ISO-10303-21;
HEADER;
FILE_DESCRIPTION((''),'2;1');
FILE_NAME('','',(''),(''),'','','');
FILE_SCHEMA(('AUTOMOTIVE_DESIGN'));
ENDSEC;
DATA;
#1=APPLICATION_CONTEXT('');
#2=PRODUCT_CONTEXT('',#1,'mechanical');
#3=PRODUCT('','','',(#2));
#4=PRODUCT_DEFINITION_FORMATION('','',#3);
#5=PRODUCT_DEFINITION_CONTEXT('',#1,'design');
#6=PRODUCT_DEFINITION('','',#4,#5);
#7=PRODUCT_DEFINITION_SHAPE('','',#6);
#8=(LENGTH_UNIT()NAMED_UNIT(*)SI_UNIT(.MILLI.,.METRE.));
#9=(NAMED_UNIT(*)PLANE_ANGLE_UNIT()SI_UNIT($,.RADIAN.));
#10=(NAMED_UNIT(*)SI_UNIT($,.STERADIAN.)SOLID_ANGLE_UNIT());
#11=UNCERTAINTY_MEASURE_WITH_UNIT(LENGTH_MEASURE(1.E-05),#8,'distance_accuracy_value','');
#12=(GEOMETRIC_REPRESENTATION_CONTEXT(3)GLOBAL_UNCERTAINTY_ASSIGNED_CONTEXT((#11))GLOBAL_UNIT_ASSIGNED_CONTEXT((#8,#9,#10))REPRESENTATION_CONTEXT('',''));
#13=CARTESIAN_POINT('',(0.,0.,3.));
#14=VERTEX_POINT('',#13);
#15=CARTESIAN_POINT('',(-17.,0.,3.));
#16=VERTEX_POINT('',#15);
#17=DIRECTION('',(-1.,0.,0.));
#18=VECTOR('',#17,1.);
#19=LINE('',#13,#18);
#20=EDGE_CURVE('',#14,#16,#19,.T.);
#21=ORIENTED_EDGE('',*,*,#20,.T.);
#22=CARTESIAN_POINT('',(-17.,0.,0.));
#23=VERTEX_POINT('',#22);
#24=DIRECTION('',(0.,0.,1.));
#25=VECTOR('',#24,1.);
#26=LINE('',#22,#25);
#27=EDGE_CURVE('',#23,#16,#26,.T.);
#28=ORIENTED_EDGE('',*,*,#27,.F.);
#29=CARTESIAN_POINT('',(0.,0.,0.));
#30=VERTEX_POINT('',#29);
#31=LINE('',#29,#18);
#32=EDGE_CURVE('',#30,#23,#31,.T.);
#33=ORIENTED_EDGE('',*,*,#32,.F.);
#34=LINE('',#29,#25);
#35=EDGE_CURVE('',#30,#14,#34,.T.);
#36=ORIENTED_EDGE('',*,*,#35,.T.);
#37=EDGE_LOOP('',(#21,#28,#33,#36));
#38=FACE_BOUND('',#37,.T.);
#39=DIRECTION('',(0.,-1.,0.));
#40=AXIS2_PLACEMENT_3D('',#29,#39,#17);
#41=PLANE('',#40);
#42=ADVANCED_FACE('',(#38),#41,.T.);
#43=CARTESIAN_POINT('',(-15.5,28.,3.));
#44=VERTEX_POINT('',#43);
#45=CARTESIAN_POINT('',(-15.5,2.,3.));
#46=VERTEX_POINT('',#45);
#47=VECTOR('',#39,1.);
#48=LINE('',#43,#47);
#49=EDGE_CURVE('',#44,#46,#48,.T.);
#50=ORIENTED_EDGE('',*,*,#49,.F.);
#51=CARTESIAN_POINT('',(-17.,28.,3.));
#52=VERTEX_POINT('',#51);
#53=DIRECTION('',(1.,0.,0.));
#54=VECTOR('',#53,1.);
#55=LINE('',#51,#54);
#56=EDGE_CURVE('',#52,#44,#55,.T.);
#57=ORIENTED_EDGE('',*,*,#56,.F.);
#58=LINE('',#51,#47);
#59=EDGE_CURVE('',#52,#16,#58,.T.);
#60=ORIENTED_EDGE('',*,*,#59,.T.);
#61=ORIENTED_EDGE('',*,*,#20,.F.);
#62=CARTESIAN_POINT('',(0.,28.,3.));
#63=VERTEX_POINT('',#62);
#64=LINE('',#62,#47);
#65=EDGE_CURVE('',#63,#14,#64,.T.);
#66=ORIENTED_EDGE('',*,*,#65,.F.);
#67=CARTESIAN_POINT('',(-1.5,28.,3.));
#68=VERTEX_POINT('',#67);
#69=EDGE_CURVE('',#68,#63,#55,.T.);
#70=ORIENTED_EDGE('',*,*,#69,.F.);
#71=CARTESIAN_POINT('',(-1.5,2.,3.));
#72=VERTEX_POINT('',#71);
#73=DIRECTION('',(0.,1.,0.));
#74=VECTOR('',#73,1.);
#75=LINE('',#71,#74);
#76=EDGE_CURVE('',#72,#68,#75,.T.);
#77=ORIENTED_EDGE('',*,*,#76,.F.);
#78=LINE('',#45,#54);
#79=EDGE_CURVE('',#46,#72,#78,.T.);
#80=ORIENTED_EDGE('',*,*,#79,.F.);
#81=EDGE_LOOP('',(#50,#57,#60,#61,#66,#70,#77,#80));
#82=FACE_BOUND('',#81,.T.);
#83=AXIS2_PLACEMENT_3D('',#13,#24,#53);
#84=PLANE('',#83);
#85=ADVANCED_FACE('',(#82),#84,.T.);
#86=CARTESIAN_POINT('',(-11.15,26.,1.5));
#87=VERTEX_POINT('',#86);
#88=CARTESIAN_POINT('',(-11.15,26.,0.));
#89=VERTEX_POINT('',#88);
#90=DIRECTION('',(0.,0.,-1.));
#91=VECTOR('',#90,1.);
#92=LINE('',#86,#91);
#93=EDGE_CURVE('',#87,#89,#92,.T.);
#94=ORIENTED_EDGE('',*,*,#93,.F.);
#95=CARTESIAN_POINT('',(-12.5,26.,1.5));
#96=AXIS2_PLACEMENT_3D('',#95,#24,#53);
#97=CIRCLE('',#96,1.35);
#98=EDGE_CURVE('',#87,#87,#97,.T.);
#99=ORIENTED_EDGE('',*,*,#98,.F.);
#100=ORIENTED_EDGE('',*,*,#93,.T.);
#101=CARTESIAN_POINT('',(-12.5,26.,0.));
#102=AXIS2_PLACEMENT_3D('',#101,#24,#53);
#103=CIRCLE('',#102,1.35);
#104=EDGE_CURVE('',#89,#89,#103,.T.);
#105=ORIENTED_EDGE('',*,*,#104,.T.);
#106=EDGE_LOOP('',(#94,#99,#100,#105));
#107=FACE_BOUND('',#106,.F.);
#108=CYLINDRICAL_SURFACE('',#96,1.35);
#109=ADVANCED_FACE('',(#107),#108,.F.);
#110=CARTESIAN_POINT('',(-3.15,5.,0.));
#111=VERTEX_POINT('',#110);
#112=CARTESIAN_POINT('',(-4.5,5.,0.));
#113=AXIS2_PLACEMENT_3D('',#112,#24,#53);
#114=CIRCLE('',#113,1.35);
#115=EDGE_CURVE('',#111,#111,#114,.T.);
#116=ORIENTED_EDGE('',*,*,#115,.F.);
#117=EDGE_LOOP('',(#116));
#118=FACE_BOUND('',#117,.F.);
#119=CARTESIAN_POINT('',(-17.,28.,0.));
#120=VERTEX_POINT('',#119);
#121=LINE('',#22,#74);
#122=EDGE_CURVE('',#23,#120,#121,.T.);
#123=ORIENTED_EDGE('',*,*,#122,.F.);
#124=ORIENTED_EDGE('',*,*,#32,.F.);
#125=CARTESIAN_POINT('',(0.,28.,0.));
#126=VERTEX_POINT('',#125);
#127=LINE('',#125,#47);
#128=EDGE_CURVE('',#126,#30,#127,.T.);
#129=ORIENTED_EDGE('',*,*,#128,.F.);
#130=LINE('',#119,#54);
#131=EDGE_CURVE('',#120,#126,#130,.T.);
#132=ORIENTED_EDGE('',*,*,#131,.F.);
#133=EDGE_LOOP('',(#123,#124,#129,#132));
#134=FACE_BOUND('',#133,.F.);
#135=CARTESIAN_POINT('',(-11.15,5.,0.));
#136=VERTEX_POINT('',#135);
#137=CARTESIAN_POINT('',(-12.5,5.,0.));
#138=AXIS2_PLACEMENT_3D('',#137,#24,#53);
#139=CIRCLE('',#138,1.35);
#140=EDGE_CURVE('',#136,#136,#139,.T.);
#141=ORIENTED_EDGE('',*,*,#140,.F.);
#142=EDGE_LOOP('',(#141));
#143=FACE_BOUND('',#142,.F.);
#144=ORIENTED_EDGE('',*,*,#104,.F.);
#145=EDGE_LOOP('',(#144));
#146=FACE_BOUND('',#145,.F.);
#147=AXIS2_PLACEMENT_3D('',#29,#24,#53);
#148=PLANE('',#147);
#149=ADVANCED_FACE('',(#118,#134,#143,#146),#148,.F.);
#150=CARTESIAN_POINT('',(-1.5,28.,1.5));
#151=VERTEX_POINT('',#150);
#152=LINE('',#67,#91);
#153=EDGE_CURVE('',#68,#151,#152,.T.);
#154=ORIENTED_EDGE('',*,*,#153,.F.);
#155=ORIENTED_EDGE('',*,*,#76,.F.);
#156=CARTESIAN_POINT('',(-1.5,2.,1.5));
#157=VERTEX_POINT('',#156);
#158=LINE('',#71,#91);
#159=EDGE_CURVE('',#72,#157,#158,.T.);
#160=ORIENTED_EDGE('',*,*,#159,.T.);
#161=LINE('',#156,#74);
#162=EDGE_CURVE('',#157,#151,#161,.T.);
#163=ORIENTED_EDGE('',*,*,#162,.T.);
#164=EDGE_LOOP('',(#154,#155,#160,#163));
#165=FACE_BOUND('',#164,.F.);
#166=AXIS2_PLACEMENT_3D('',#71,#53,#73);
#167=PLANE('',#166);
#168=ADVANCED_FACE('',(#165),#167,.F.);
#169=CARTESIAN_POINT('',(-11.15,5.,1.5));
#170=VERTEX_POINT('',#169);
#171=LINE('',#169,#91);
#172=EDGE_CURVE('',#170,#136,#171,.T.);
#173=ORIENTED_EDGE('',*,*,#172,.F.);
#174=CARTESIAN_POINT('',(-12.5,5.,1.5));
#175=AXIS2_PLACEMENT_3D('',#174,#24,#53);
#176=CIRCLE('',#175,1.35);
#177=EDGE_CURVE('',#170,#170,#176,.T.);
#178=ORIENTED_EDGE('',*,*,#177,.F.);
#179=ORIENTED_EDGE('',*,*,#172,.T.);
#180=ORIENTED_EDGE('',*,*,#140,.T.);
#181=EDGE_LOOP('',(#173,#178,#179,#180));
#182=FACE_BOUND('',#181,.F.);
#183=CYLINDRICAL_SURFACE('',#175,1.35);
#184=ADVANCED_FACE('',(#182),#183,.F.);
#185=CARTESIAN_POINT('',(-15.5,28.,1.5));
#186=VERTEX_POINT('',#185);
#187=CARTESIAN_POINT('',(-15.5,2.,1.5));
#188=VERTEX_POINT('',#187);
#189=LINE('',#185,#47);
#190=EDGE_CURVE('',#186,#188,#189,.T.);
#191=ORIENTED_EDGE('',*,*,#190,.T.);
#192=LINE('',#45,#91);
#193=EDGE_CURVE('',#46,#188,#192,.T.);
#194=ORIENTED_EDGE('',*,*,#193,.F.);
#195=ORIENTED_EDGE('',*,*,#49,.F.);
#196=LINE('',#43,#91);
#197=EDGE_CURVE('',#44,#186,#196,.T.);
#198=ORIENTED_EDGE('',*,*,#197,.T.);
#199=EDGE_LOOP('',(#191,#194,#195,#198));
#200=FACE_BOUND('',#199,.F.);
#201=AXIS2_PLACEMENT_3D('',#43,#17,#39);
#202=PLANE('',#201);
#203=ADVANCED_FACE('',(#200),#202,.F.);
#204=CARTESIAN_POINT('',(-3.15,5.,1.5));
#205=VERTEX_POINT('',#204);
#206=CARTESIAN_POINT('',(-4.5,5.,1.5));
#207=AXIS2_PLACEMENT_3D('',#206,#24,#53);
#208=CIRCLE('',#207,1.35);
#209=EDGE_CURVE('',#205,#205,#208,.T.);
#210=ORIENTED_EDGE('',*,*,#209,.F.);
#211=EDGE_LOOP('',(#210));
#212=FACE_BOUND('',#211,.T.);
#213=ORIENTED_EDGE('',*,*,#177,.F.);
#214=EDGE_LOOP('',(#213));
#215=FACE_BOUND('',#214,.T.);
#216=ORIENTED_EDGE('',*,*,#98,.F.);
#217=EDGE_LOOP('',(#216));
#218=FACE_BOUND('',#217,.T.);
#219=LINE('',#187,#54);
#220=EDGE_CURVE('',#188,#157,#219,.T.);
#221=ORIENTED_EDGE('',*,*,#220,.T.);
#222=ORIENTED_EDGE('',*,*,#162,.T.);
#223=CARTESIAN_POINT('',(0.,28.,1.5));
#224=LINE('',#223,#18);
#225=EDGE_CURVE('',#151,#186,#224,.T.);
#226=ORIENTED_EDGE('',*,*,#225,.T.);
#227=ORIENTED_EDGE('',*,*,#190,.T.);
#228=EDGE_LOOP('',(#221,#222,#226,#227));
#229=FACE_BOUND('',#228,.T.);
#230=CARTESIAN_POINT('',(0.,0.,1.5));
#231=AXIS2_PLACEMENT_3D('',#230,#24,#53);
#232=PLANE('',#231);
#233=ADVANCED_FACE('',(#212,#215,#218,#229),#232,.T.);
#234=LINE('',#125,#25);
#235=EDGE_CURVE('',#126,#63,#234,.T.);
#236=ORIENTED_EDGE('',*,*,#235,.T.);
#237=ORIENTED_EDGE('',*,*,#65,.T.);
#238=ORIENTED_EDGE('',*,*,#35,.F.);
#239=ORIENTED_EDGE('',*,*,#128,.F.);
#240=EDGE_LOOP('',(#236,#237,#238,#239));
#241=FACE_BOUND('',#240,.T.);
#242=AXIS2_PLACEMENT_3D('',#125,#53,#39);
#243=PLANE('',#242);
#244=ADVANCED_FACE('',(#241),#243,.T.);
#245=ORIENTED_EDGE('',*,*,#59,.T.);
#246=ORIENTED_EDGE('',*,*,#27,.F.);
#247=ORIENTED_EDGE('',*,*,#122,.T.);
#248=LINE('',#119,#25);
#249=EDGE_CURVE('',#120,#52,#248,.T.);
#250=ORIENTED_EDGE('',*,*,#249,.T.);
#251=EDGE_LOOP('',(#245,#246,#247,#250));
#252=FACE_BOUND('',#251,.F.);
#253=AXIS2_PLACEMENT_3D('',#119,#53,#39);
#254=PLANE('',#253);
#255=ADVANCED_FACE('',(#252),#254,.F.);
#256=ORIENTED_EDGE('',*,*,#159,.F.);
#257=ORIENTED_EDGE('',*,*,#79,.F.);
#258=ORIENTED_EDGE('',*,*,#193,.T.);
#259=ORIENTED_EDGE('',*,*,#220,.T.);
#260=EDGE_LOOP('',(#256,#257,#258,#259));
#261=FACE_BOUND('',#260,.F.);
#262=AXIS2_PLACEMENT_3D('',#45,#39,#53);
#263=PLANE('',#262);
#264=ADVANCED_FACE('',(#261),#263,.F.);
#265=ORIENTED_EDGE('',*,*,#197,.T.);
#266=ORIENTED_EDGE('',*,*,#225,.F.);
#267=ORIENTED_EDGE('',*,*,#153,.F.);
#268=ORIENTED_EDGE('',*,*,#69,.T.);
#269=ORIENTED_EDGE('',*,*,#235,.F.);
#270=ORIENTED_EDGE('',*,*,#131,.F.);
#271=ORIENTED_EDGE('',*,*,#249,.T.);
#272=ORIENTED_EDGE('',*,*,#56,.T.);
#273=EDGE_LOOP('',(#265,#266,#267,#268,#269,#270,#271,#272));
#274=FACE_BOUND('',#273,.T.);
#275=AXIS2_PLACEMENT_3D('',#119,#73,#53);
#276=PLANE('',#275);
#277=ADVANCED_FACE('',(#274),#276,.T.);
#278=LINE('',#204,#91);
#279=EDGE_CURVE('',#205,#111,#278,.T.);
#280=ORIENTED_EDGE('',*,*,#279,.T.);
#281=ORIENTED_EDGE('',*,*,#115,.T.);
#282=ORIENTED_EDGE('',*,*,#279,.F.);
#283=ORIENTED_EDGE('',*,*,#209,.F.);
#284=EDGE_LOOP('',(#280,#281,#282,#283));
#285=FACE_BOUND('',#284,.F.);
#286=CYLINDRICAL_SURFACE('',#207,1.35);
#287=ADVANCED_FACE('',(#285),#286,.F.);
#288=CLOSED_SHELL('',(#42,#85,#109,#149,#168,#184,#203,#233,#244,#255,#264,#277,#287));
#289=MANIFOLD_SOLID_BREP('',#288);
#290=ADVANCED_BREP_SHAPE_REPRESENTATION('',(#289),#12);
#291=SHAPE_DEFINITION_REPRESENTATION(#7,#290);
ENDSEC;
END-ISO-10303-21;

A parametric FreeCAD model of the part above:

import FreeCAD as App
import Part
import Sketcher
Q = App.Units.Quantity

doc = App.newDocument("Part")
body = doc.addObject("PartDesign::Body", "Body")

# Sketch on XY plane
sketch1 = body.newObject("Sketcher::SketchObject", "Sketch")
sketch1.AttachmentSupport = (doc.getObject("XY_Plane"), [""])
sketch1.MapMode = "FlatFace"
sketch1.addGeometry([
    Part.LineSegment(App.Vector(0, 28, 0), App.Vector(-17, 28, 0)),
    Part.LineSegment(App.Vector(-17, 28, 0), App.Vector(-17, 0, 0)),
    Part.LineSegment(App.Vector(-17, 0, 0), App.Vector(0, 0, 0)),
    Part.LineSegment(App.Vector(0, 0, 0), App.Vector(0, 28, 0)),
], False)
sketch1.addConstraint([
    Sketcher.Constraint("Coincident", 0, 2, 1, 1),
    Sketcher.Constraint("Coincident", 1, 2, 2, 1),
    Sketcher.Constraint("Coincident", 2, 2, 3, 1),
    Sketcher.Constraint("Coincident", 3, 2, 0, 1),
    Sketcher.Constraint("Horizontal", 0),
    Sketcher.Constraint("Vertical", 1),
    Sketcher.Constraint("Horizontal", 2),
    Sketcher.Constraint("Vertical", 3),
    Sketcher.Constraint("Coincident", 2, 2, -1, 1),
    Sketcher.Constraint("DistanceX", 0, 2, 0, 1, Q("17 mm")),
    Sketcher.Constraint("DistanceY", 1, 2, 1, 1, Q("28 mm")),
])
pad1 = body.newObject("PartDesign::Pad", "Pad")
pad1.Profile = sketch1
pad1.Length = 3

# Sketch on XY plane
sketch2 = body.newObject("Sketcher::SketchObject", "Sketch001")
sketch2.AttachmentSupport = (doc.getObject("XY_Plane"), [""])
sketch2.MapMode = "FlatFace"
sketch2.AttachmentOffset = App.Placement(App.Vector(0, 0, 3), App.Rotation())
sketch2.addGeometry([
    Part.LineSegment(App.Vector(-2, 28, 0), App.Vector(-16, 28, 0)),
    Part.LineSegment(App.Vector(-16, 28, 0), App.Vector(-16, 2, 0)),
    Part.LineSegment(App.Vector(-16, 2, 0), App.Vector(-2, 2, 0)),
    Part.LineSegment(App.Vector(-2, 2, 0), App.Vector(-2, 28, 0)),
], False)
sketch2.addConstraint([
    Sketcher.Constraint("Coincident", 0, 2, 1, 1),
    Sketcher.Constraint("Coincident", 1, 2, 2, 1),
    Sketcher.Constraint("Coincident", 2, 2, 3, 1),
    Sketcher.Constraint("Coincident", 3, 2, 0, 1),
    Sketcher.Constraint("Horizontal", 0),
    Sketcher.Constraint("Vertical", 1),
    Sketcher.Constraint("Horizontal", 2),
    Sketcher.Constraint("Vertical", 3),
    Sketcher.Constraint("DistanceX", 0, 2, 0, 1, Q("14 mm")),
    Sketcher.Constraint("DistanceY", 1, 2, 1, 1, Q("26 mm")),
    Sketcher.Constraint("DistanceY", -1, 1, 0, 2, Q("28 mm")),
    Sketcher.Constraint("DistanceX", 0, 2, -1, 1, Q("15.5 mm")),
])
pocket1 = body.newObject("PartDesign::Pocket", "Pocket")
pocket1.Profile = sketch2
pocket1.Length = 1.5

# Sketch on XY plane
sketch3 = body.newObject("Sketcher::SketchObject", "Sketch002")
sketch3.AttachmentSupport = (doc.getObject("XY_Plane"), [""])
sketch3.MapMode = "FlatFace"
sketch3.AttachmentOffset = App.Placement(App.Vector(0, 0, 1.5), App.Rotation())
sketch3.addGeometry([
    Part.Circle(App.Vector(-12.5, 26, 0), App.Vector(0, 0, 1), 1.4),
    Part.Circle(App.Vector(-12.5, 5, 0), App.Vector(0, 0, 1), 1.4),
    Part.Circle(App.Vector(-4.5, 5, 0), App.Vector(0, 0, 1), 1.4),
], False)
sketch3.addConstraint([
    Sketcher.Constraint("Equal", 0, 1),
    Sketcher.Constraint("Equal", 1, 2),
    Sketcher.Constraint("Horizontal", 1, 3, 2, 3),
    Sketcher.Constraint("Vertical", 0, 3, 1, 3),
    Sketcher.Constraint("Diameter", 0, Q("2.7 mm")),
    Sketcher.Constraint("DistanceY", 1, 3, 0, 3, Q("21 mm")),
    Sketcher.Constraint("DistanceX", 1, 3, 2, 3, Q("8 mm")),
    Sketcher.Constraint("DistanceY", -1, 1, 0, 3, Q("26 mm")),
    Sketcher.Constraint("DistanceX", 0, 3, -1, 1, Q("12.5 mm")),
])
pocket2 = body.newObject("PartDesign::Pocket", "Pocket001")
pocket2.Profile = sketch3
pocket2.Type = "ThroughAll"

doc.recompute()
